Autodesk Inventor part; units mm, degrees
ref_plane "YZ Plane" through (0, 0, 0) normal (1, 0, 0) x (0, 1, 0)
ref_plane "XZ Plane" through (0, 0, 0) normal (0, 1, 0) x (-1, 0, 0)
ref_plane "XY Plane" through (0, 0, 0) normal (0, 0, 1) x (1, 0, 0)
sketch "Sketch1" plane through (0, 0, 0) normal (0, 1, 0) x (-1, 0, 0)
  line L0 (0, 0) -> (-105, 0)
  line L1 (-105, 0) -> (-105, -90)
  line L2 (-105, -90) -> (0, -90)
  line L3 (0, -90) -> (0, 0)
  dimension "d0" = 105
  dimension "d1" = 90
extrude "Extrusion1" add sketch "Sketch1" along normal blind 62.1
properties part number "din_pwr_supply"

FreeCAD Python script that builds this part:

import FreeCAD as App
import Part
import Sketcher

V = App.Vector
Q = App.Units.Quantity


def add_polygon(sketch, points):
    """Adds a closed chain of lines whose ends are joined by coincident constraints."""
    first, n = sketch.GeometryCount, len(points)
    for a, b in zip(points, points[1:] + points[:1]):
        sketch.addGeometry(Part.LineSegment(App.Vector(*a, 0), App.Vector(*b, 0)), False)
    for i in range(n):
        sketch.addConstraint(Sketcher.Constraint("Coincident", first + i, 2, first + (i + 1) % n, 1))

doc = App.newDocument("Part")
body = doc.addObject("PartDesign::Body", "Body")

# Sketch on XZ plane
sketch1 = body.newObject("Sketcher::SketchObject", "Sketch")
sketch1.AttachmentSupport = (doc.getObject("XZ_Plane"), [""])
sketch1.MapMode = "FlatFace"
add_polygon(sketch1, [(0, -90), (0, 0), (105, 0), (105, -90)])  # lines 0-3
sketch1.addConstraint([
    Sketcher.Constraint("Vertical", 0),
    Sketcher.Constraint("Horizontal", 1),
    Sketcher.Constraint("Vertical", 2),
    Sketcher.Constraint("Horizontal", 3),
    Sketcher.Constraint("Coincident", 0, 2, -1, 1),
    Sketcher.Constraint("DistanceX", 1, 1, 1, 2, Q("105 mm")),
    Sketcher.Constraint("DistanceY", 0, 1, 0, 2, Q("90 mm")),
])
pad1 = body.newObject("PartDesign::Pad", "Pad")
pad1.Profile = sketch1
pad1.Length = 62.1
pad1.Reversed = True

doc.recompute()
